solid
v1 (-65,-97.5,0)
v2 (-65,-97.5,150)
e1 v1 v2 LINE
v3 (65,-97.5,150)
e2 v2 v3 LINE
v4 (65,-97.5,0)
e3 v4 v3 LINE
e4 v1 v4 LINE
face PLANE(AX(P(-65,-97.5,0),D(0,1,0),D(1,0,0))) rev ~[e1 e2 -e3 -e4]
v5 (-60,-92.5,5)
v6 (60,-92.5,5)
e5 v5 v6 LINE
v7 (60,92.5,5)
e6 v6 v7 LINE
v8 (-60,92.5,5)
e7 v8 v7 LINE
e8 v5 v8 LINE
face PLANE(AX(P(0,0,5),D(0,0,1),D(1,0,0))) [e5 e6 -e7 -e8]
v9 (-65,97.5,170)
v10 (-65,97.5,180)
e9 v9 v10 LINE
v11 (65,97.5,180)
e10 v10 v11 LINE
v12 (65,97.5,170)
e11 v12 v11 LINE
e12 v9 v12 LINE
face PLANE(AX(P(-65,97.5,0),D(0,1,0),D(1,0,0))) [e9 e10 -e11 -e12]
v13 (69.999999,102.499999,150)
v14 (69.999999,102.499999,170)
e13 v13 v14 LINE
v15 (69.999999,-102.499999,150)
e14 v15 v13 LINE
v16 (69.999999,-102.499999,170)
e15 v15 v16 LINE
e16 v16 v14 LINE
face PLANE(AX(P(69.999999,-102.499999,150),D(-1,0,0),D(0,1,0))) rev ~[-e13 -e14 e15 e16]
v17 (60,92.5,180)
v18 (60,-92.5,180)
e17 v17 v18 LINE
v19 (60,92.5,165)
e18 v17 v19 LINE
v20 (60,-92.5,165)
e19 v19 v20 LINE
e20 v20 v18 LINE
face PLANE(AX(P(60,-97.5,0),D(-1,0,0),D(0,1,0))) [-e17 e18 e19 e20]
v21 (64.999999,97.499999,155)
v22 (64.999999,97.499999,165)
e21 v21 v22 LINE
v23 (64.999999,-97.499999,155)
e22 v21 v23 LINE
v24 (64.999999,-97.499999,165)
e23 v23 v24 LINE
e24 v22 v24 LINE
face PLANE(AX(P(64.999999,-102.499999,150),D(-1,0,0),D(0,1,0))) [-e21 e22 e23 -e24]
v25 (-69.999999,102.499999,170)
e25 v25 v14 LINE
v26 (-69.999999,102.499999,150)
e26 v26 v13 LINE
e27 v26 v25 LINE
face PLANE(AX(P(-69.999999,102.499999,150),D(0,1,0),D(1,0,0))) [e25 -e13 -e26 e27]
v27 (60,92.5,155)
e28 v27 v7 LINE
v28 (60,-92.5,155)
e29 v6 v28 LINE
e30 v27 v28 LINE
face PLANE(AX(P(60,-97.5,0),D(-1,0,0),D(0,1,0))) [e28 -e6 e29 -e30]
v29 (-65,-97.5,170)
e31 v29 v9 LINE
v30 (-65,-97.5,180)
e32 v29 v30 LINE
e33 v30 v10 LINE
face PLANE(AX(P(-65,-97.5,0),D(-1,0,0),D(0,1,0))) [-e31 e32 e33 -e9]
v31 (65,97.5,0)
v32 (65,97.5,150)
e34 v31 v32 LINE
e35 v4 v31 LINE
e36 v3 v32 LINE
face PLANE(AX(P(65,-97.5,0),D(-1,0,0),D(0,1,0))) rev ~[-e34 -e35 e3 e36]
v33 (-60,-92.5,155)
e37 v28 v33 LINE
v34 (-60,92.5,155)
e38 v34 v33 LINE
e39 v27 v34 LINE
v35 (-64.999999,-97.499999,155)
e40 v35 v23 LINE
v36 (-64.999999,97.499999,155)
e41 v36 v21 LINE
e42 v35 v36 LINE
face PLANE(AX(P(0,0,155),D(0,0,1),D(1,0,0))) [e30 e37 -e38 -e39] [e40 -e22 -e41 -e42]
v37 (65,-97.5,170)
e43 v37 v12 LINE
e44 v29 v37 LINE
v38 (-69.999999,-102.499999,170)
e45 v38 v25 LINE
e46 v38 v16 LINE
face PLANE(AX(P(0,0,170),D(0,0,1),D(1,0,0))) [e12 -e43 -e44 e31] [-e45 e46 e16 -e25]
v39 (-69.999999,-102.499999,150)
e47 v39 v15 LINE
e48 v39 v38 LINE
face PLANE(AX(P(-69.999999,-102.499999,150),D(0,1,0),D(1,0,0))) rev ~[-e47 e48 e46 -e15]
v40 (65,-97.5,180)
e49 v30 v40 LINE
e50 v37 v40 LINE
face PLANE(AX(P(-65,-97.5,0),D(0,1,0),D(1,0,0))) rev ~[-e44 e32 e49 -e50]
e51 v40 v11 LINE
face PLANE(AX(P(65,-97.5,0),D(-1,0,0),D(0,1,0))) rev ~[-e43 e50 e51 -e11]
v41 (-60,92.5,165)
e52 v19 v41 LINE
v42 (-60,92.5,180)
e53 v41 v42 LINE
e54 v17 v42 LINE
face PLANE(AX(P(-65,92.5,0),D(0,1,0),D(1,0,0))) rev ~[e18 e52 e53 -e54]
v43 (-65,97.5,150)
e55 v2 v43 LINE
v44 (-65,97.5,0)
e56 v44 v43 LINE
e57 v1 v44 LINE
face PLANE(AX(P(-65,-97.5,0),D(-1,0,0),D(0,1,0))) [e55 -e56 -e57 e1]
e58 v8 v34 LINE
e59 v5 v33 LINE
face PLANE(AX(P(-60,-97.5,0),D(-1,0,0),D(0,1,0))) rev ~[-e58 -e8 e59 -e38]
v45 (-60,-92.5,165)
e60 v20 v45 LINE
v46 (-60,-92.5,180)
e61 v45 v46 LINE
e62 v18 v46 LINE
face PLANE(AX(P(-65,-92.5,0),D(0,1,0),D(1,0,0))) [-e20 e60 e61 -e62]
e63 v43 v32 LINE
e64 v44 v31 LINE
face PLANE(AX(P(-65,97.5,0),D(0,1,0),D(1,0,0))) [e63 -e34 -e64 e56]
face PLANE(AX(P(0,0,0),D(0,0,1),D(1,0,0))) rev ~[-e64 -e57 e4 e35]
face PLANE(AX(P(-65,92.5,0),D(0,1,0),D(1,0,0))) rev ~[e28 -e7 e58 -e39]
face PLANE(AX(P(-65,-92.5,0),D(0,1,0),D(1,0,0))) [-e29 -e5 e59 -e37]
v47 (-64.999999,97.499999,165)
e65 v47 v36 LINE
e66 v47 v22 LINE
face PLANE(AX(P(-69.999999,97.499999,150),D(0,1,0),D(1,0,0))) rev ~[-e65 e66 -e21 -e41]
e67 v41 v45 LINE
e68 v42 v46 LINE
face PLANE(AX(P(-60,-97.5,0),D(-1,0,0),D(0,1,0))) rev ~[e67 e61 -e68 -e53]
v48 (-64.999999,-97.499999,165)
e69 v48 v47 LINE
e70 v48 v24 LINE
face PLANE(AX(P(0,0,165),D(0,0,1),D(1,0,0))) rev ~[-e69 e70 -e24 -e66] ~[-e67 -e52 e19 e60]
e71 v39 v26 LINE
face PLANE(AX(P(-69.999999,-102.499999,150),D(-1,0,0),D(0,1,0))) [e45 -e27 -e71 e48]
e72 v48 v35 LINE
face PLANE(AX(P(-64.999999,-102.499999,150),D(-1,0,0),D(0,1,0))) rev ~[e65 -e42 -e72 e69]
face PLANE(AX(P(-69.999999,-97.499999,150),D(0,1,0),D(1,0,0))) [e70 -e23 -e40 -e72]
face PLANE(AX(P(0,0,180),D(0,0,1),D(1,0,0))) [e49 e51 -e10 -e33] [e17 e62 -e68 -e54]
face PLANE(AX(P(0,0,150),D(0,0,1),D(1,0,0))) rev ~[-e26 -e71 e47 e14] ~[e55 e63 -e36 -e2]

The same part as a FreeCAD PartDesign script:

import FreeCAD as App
import Part
import Sketcher


def faces_at(feature, points):
    """Names of the faces that lie closest to the given points."""
    faces = feature.Shape.Faces
    near = lambda p: min(range(len(faces)), key=lambda i: faces[i].distToShape(Part.Vertex(*p))[0])
    return sorted({f"Face{near(p) + 1}" for p in points})

doc = App.newDocument("Part")
body = doc.addObject("PartDesign::Body", "Body")

# Sketch on XY plane
sketch1 = body.newObject("Sketcher::SketchObject", "Sketch")
sketch1.AttachmentSupport = (doc.getObject("XY_Plane"), [""])
sketch1.MapMode = "FlatFace"
sketch1.addGeometry([
    Part.LineSegment(App.Vector(-65, 98, 0), App.Vector(-65, -98, 0)),
    Part.LineSegment(App.Vector(-65, -98, 0), App.Vector(65, -98, 0)),
    Part.LineSegment(App.Vector(65, -98, 0), App.Vector(65, 98, 0)),
    Part.LineSegment(App.Vector(65, 98, 0), App.Vector(-65, 98, 0)),
], False)
sketch1.addConstraint([
    Sketcher.Constraint("Coincident", 0, 2, 1, 1),
    Sketcher.Constraint("Coincident", 1, 2, 2, 1),
    Sketcher.Constraint("Coincident", 2, 2, 3, 1),
    Sketcher.Constraint("Coincident", 3, 2, 0, 1),
    Sketcher.Constraint("Vertical", 0),
    Sketcher.Constraint("Horizontal", 1),
    Sketcher.Constraint("Vertical", 2),
    Sketcher.Constraint("Horizontal", 3),
    Sketcher.Constraint("Symmetric", 0, 2, 2, 2, -1, 1),
    Sketcher.Constraint("DistanceX", 1, 1, 1, 2, 130.0),
    Sketcher.Constraint("DistanceY", 0, 2, 0, 1, 195.0),
])
pad1 = body.newObject("PartDesign::Pad", "Pad")
pad1.Profile = sketch1
pad1.Length = 180

# Sketch on XY plane
sketch2 = body.newObject("Sketcher::SketchObject", "Sketch001")
sketch2.AttachmentSupport = (doc.getObject("XY_Plane"), [""])
sketch2.MapMode = "FlatFace"
sketch2.AttachmentOffset = App.Placement(App.Vector(0, 0, 150), App.Rotation())
sketch2.addGeometry([
    Part.LineSegment(App.Vector(-70, 102, 0), App.Vector(-70, -102, 0)),
    Part.LineSegment(App.Vector(-70, -102, 0), App.Vector(70, -102, 0)),
    Part.LineSegment(App.Vector(70, -102, 0), App.Vector(70, 102, 0)),
    Part.LineSegment(App.Vector(70, 102, 0), App.Vector(-70, 102, 0)),
], False)
sketch2.addConstraint([
    Sketcher.Constraint("Coincident", 0, 2, 1, 1),
    Sketcher.Constraint("Coincident", 1, 2, 2, 1),
    Sketcher.Constraint("Coincident", 2, 2, 3, 1),
    Sketcher.Constraint("Coincident", 3, 2, 0, 1),
    Sketcher.Constraint("Vertical", 0),
    Sketcher.Constraint("Horizontal", 1),
    Sketcher.Constraint("Vertical", 2),
    Sketcher.Constraint("Horizontal", 3),
    Sketcher.Constraint("Symmetric", 0, 2, 2, 2, -1, 1),
    Sketcher.Constraint("DistanceX", 0, 2, -1, 1, 69.999999),
    Sketcher.Constraint("DistanceY", 0, 2, -1, 1, 102.499999),
])
pad2 = body.newObject("PartDesign::Pad", "Pad001")
pad2.Profile = sketch2
pad2.Length = 20
doc.recompute()

thickness = body.newObject("PartDesign::Thickness", "Thickness")
thickness.Base = (pad2, faces_at(pad2, [(0, 0, 180)]))
thickness.Value = 5
thickness.Reversed = True
thickness.Join = "Intersection"

doc.recompute()
